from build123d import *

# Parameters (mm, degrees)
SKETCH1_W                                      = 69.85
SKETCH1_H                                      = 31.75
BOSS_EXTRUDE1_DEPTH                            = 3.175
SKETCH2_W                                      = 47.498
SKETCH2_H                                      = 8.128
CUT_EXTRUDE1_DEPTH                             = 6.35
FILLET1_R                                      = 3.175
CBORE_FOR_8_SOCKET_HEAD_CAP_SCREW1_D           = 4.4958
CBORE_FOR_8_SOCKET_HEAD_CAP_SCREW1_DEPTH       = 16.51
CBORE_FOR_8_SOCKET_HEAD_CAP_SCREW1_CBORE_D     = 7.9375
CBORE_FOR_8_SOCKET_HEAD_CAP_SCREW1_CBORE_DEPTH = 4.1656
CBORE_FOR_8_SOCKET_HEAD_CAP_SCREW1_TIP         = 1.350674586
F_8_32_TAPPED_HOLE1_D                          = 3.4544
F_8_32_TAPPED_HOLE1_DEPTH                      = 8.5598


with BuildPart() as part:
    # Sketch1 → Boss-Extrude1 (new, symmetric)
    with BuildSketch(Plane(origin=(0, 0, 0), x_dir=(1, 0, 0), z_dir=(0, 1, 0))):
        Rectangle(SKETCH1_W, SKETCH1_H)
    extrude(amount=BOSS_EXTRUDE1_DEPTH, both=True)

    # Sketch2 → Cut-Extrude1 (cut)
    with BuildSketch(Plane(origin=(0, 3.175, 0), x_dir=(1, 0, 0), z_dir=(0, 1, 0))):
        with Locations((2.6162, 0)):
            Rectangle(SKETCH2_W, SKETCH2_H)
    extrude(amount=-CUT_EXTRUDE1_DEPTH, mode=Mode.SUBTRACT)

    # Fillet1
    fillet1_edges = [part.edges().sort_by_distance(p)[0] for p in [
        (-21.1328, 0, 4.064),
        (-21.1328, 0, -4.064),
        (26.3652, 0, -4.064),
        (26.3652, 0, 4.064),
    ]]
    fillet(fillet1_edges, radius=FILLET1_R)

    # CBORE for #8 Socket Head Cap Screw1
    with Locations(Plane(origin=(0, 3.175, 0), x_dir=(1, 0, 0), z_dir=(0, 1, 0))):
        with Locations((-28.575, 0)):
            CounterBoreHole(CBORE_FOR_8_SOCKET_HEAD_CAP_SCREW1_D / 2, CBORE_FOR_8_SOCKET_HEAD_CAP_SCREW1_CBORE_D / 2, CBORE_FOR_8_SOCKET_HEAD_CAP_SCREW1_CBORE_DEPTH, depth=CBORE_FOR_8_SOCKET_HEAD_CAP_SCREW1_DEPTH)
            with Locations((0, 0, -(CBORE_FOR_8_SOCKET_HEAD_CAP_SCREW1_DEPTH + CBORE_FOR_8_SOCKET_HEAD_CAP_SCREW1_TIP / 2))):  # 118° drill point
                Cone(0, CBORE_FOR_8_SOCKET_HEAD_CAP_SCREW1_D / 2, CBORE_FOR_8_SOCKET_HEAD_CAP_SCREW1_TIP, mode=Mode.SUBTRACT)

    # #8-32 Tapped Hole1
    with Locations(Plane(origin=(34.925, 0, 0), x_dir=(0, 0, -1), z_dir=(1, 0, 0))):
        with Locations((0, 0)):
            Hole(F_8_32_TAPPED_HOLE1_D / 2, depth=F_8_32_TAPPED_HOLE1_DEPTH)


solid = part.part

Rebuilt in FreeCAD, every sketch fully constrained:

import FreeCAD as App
import Part
import Sketcher
Q = App.Units.Quantity


def edges_at(feature, points):
    """Names of the edges that pass closest to the given points."""
    edges = feature.Shape.Edges
    near = lambda p: min(range(len(edges)), key=lambda i: edges[i].distToShape(Part.Vertex(*p))[0])
    return sorted({f"Edge{near(p) + 1}" for p in points})

doc = App.newDocument("Part")
params = doc.addObject("Spreadsheet::Sheet", "Params")
for row, (alias, value) in enumerate([
    ("sketch1_width", "2.75 in"),
    ("sketch1_height", "1.25 in"),
    ("pad1_length", "0.25 in"),
    ("sketch2_width", "1.87 in"),
    ("sketch2_height", "0.32 in"),
    ("pocket1_length", "0.25 in"),
    ("fillet_radius", "0.125 in"),
    ("sketch3_diameter", "0.177 in"),
    ("hole_diameter", "0.177 in"),
    ("hole_depth", "0.65 in"),
    ("hole_cbore_diameter", "0.3125 in"),
    ("hole_cbore_depth", "0.164 in"),
    ("sketch4_diameter", "0.136 in"),
    ("hole2_diameter", "0.136 in"),
    ("hole2_depth", "0.337 in"),
], start=1):
    params.set(f"A{row}", alias)
    params.set(f"B{row}", "=" + value)
    params.setAlias(f"B{row}", alias)

body = doc.addObject("PartDesign::Body", "Body")

# Sketch on XZ plane
sketch1 = body.newObject("Sketcher::SketchObject", "Sketch")
sketch1.AttachmentSupport = (doc.getObject("XZ_Plane"), [""])
sketch1.MapMode = "FlatFace"
sketch1.addGeometry([
    Part.LineSegment(App.Vector(-35, -16, 0), App.Vector(-35, 16, 0)),
    Part.LineSegment(App.Vector(-35, 16, 0), App.Vector(35, 16, 0)),
    Part.LineSegment(App.Vector(35, 16, 0), App.Vector(35, -16, 0)),
    Part.LineSegment(App.Vector(35, -16, 0), App.Vector(-35, -16, 0)),
], False)
sketch1.addConstraint([
    Sketcher.Constraint("Coincident", 0, 2, 1, 1),
    Sketcher.Constraint("Coincident", 1, 2, 2, 1),
    Sketcher.Constraint("Coincident", 2, 2, 3, 1),
    Sketcher.Constraint("Coincident", 3, 2, 0, 1),
    Sketcher.Constraint("Vertical", 0),
    Sketcher.Constraint("Horizontal", 1),
    Sketcher.Constraint("Vertical", 2),
    Sketcher.Constraint("Horizontal", 3),
    Sketcher.Constraint("Symmetric", 0, 2, 2, 2, -1, 1),
    Sketcher.Constraint("DistanceX", 1, 1, 1, 2, Q("2.75 in")),
    Sketcher.Constraint("DistanceY", 0, 1, 0, 2, Q("1.25 in")),
])
sketch1.setExpression("Constraints[9]", "Params.sketch1_width")
sketch1.setExpression("Constraints[10]", "Params.sketch1_height")
pad1 = body.newObject("PartDesign::Pad", "Pad")
pad1.Profile = sketch1
pad1.setExpression("Length", "Params.pad1_length")
pad1.Midplane = True

# Sketch on XZ plane
sketch2 = body.newObject("Sketcher::SketchObject", "Sketch001")
sketch2.AttachmentSupport = (doc.getObject("XZ_Plane"), [""])
sketch2.MapMode = "FlatFace"
sketch2.AttachmentOffset = App.Placement(App.Vector(0, 0, -0.125 * 25.4), App.Rotation())
sketch2.addGeometry([
    Part.LineSegment(App.Vector(-21, -4, 0), App.Vector(-21, 4, 0)),
    Part.LineSegment(App.Vector(-21, 4, 0), App.Vector(26, 4, 0)),
    Part.LineSegment(App.Vector(26, 4, 0), App.Vector(26, -4, 0)),
    Part.LineSegment(App.Vector(26, -4, 0), App.Vector(-21, -4, 0)),
], False)
sketch2.addConstraint([
    Sketcher.Constraint("Coincident", 0, 2, 1, 1),
    Sketcher.Constraint("Coincident", 1, 2, 2, 1),
    Sketcher.Constraint("Coincident", 2, 2, 3, 1),
    Sketcher.Constraint("Coincident", 3, 2, 0, 1),
    Sketcher.Constraint("Vertical", 0),
    Sketcher.Constraint("Horizontal", 1),
    Sketcher.Constraint("Vertical", 2),
    Sketcher.Constraint("Horizontal", 3),
    Sketcher.Constraint("DistanceX", 1, 1, 1, 2, Q("1.87 in")),
    Sketcher.Constraint("DistanceY", 0, 1, 0, 2, Q("0.32 in")),
    Sketcher.Constraint("DistanceY", -1, 1, 0, 2, Q("0.16 in")),
    Sketcher.Constraint("DistanceX", 0, 2, -1, 1, Q("0.832 in")),
])
sketch2.setExpression("Constraints[8]", "Params.sketch2_width")
sketch2.setExpression("Constraints[9]", "Params.sketch2_height")
pocket1 = body.newObject("PartDesign::Pocket", "Pocket")
pocket1.Profile = sketch2
pocket1.setExpression("Length", "Params.pocket1_length")
pocket1.Reversed = True
doc.recompute()

fillet = body.newObject("PartDesign::Fillet", "Fillet")
fillet.Base = (pocket1, edges_at(pocket1, [
    (-21.133, 0, 4.064),
    (-21.133, 0, -4.064),
    (26.365, 0, -4.064),
    (26.365, 0, 4.064),
]))
fillet.setExpression("Radius", "Params.fillet_radius")

# Sketch on XZ plane
sketch3 = body.newObject("Sketcher::SketchObject", "Sketch002")
sketch3.AttachmentSupport = (doc.getObject("XZ_Plane"), [""])
sketch3.MapMode = "FlatFace"
sketch3.AttachmentOffset = App.Placement(App.Vector(0, 0, -0.125 * 25.4), App.Rotation())
sketch3.addGeometry(Part.Circle(App.Vector(-28.6, 0, 0), App.Vector(0, 0, 1), 2.2), False)
sketch3.addConstraint([
    Sketcher.Constraint("PointOnObject", 0, 3, -1),
    Sketcher.Constraint("Diameter", 0, Q("0.177 in")),
    Sketcher.Constraint("DistanceX", 0, 3, -1, 1, Q("1.125 in")),
])
sketch3.setExpression("Constraints[1]", "Params.sketch3_diameter")
doc.recompute()
hole = body.newObject("PartDesign::Hole", "Hole")
hole.Profile = sketch3
hole.ThreadType = "None"
hole.setExpression("Diameter", "Params.hole_diameter")
hole.DepthType = "Dimension"
hole.setExpression("Depth", "Params.hole_depth")
hole.DrillPoint = "Angled"
hole.DrillPointAngle = 118
hole.HoleCutType = "Counterbore"
hole.setExpression("HoleCutDiameter", "Params.hole_cbore_diameter")
hole.setExpression("HoleCutDepth", "Params.hole_cbore_depth")
hole.Reversed = True

# Sketch on YZ plane
sketch4 = body.newObject("Sketcher::SketchObject", "Sketch003")
sketch4.AttachmentSupport = (doc.getObject("YZ_Plane"), [""])
sketch4.MapMode = "FlatFace"
sketch4.AttachmentOffset = App.Placement(App.Vector(0, 0, 1.375 * 25.4), App.Rotation())
sketch4.addGeometry(Part.Circle(App.Vector(0, 0, 0), App.Vector(0, 0, 1), 1.7), False)
sketch4.addConstraint([
    Sketcher.Constraint("Coincident", 0, 3, -1, 1),
    Sketcher.Constraint("Diameter", 0, Q("0.136 in")),
])
sketch4.setExpression("Constraints[1]", "Params.sketch4_diameter")
doc.recompute()
hole2 = body.newObject("PartDesign::Hole", "Hole001")
hole2.Profile = sketch4
hole2.ThreadType = "None"
hole2.setExpression("Diameter", "Params.hole2_diameter")
hole2.DepthType = "Dimension"
hole2.setExpression("Depth", "Params.hole2_depth")
hole2.DrillPoint = "Flat"

doc.recompute()
